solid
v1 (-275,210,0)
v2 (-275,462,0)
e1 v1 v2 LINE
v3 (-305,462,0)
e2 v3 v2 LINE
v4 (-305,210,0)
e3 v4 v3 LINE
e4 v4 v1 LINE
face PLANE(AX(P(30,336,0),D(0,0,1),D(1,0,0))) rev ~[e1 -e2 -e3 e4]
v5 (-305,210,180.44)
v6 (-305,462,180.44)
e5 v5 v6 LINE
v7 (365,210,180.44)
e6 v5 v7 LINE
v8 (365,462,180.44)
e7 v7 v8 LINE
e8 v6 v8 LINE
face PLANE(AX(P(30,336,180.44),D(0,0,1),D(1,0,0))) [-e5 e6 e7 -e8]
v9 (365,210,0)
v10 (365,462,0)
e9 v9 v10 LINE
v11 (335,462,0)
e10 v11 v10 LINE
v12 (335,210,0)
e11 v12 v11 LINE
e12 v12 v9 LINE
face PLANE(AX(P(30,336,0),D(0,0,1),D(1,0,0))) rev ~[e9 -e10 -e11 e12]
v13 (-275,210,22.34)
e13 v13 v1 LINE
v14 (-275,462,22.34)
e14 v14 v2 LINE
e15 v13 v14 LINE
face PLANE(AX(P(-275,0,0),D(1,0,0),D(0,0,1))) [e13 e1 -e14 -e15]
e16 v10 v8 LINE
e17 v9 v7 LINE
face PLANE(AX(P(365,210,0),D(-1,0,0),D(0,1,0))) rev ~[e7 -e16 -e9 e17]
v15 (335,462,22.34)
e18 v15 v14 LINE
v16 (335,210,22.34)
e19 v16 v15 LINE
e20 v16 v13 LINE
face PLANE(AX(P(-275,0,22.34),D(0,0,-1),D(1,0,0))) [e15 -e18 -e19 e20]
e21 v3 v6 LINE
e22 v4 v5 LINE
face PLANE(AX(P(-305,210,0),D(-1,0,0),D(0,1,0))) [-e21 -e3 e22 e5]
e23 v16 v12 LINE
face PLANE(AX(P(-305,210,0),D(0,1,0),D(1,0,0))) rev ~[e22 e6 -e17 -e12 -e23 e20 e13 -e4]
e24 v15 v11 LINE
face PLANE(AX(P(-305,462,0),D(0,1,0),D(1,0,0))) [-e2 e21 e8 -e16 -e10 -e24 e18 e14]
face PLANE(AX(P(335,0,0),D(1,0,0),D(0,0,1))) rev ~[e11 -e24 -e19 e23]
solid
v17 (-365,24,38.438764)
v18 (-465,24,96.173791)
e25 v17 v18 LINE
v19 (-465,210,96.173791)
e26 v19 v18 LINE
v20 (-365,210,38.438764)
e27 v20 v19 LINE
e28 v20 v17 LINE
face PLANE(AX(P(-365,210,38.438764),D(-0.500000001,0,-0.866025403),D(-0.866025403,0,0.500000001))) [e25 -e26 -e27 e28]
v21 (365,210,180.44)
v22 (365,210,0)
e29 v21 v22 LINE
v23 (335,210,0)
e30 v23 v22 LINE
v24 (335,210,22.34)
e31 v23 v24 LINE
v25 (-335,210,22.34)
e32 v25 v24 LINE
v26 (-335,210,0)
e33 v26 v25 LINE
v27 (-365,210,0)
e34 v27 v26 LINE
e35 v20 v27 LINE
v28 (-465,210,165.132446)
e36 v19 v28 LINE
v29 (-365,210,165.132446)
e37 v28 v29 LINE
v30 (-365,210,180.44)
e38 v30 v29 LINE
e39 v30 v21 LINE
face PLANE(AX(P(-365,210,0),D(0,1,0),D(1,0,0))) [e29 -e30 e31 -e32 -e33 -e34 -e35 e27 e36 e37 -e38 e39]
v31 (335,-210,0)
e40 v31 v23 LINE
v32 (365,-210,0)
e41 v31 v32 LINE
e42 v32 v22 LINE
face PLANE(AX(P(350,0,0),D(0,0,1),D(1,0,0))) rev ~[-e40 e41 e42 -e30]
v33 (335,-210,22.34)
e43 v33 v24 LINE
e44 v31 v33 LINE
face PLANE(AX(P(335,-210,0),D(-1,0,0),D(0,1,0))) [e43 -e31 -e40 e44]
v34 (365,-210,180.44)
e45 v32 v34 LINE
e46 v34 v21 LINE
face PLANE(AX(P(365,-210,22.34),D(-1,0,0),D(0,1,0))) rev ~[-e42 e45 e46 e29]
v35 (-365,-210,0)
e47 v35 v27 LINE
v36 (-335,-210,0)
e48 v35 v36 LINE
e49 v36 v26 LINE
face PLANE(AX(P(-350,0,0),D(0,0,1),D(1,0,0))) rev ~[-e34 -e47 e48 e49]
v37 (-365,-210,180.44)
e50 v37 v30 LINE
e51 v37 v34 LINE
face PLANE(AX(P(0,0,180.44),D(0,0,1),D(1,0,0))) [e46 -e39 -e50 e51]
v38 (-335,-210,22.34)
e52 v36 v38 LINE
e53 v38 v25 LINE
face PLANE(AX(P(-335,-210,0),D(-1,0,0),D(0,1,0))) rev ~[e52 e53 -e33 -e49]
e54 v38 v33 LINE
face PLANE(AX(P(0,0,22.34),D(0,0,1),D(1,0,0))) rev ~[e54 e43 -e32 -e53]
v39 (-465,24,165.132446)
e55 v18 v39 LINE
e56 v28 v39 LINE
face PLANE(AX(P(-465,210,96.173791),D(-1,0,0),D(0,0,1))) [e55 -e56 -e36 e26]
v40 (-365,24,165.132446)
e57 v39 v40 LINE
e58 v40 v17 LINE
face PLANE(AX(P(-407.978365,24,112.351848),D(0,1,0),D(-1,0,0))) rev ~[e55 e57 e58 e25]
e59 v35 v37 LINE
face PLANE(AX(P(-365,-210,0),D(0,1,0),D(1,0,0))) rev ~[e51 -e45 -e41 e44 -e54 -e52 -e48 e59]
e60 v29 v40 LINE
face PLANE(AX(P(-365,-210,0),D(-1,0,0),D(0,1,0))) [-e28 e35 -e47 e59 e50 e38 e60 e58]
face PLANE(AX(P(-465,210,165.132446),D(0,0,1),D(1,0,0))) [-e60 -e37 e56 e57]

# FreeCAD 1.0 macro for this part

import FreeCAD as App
import Part
import Sketcher
Q = App.Units.Quantity


def add_polygon(sketch, points):
    """Adds a closed chain of lines whose ends are joined by coincident constraints."""
    first, n = sketch.GeometryCount, len(points)
    for a, b in zip(points, points[1:] + points[:1]):
        sketch.addGeometry(Part.LineSegment(App.Vector(*a, 0), App.Vector(*b, 0)), False)
    for i in range(n):
        sketch.addConstraint(Sketcher.Constraint("Coincident", first + i, 2, first + (i + 1) % n, 1))

doc = App.newDocument("Part")
body = doc.addObject("PartDesign::Body", "Body")

sketch1 = body.newObject("Sketcher::SketchObject", "Sketch")
sketch1.AttachmentSupport = (doc.getObject("XY_Plane"), [""])
sketch1.MapMode = "FlatFace"
sketch1.AttachmentOffset = App.Placement(App.Vector(0, 0, 22.34), App.Rotation())
add_polygon(sketch1, [(-365, 210), (-365, -210), (365, -210), (365, 210)])
sketch1.addConstraint(Sketcher.Constraint("Vertical", 0))
sketch1.addConstraint(Sketcher.Constraint("Horizontal", 1))
sketch1.addConstraint(Sketcher.Constraint("Vertical", 2))
sketch1.addConstraint(Sketcher.Constraint("Horizontal", 3))
sketch1.addConstraint(Sketcher.Constraint("Symmetric", 0, 2, 2, 2, -1, 1))
sketch1.addConstraint(Sketcher.Constraint("DistanceX", 1, 1, 1, 2, Q("730 mm")))
sketch1.addConstraint(Sketcher.Constraint("DistanceY", 0, 2, 0, 1, Q("420 mm")))
pad1 = body.newObject("PartDesign::Pad", "Pad")
pad1.Profile = sketch1
pad1.Length = 158.1

sketch2 = body.newObject("Sketcher::SketchObject", "Sketch001")
sketch2.AttachmentSupport = (doc.getObject("XY_Plane"), [""])
sketch2.MapMode = "FlatFace"
add_polygon(sketch2, [(-365, 210), (-365, -210), (-335, -210), (-335, 210)])
add_polygon(sketch2, [(335, 210), (335, -210), (365, -210), (365, 210)])
sketch2.addConstraint(Sketcher.Constraint("Vertical", 0))
sketch2.addConstraint(Sketcher.Constraint("Horizontal", 1))
sketch2.addConstraint(Sketcher.Constraint("Vertical", 2))
sketch2.addConstraint(Sketcher.Constraint("Horizontal", 3))
sketch2.addConstraint(Sketcher.Constraint("Vertical", 4))
sketch2.addConstraint(Sketcher.Constraint("Horizontal", 5))
sketch2.addConstraint(Sketcher.Constraint("Vertical", 6))
sketch2.addConstraint(Sketcher.Constraint("Horizontal", 7))
sketch2.addConstraint(Sketcher.Constraint("Symmetric", 2, 2, 4, 2, -1, 1))
sketch2.addConstraint(Sketcher.Constraint("Symmetric", 0, 2, 6, 2, -1, 1))
sketch2.addConstraint(Sketcher.Constraint("Horizontal", 1, 2, 4, 2))
sketch2.addConstraint(Sketcher.Constraint("DistanceX", 1, 1, 1, 2, Q("30 mm")))
sketch2.addConstraint(Sketcher.Constraint("DistanceY", 0, 2, 0, 1, Q("420 mm")))
sketch2.addConstraint(Sketcher.Constraint("DistanceX", 0, 2, -1, 1, Q("365 mm")))
pad2 = body.newObject("PartDesign::Pad", "Pad001")
pad2.Profile = sketch2
pad2.Length = 22.34

sketch3 = body.newObject("Sketcher::SketchObject", "Sketch002")
sketch3.AttachmentSupport = (doc.getObject("XZ_Plane"), [""])
sketch3.MapMode = "FlatFace"
sketch3.AttachmentOffset = App.Placement(App.Vector(0, 0, -210), App.Rotation())
add_polygon(sketch3, [(-365, 165), (-465, 165), (-465, 96), (-365, 38)])
sketch3.addConstraint(Sketcher.Constraint("Horizontal", 0))
sketch3.addConstraint(Sketcher.Constraint("Vertical", 1))
sketch3.addConstraint(Sketcher.Constraint("Vertical", 3))
sketch3.addConstraint(Sketcher.Constraint("DistanceX", 0, 2, 0, 1, Q("100 mm")))
sketch3.addConstraint(Sketcher.Constraint("Angle", 2, Q("-30 deg")))
sketch3.addConstraint(Sketcher.Constraint("DistanceX", 0, 2, -1, 1, Q("465 mm")))
sketch3.addConstraint(Sketcher.Constraint("DistanceY", 3, 1, 3, 2, Q("126.693682 mm")))
sketch3.addConstraint(Sketcher.Constraint("DistanceY", -1, 1, 1, 2, Q("96.173791 mm")))
pad3 = body.newObject("PartDesign::Pad", "Pad002")
pad3.Profile = sketch3
pad3.Length = 186
body2 = doc.addObject("PartDesign::Body", "Body001")

sketch4 = body2.newObject("Sketcher::SketchObject", "Sketch003")
sketch4.AttachmentSupport = (doc.getObject("XY_Plane001"), [""])
sketch4.MapMode = "FlatFace"
add_polygon(sketch4, [(-305, 462), (-305, 210), (365, 210), (365, 462)])
sketch4.addConstraint(Sketcher.Constraint("Vertical", 0))
sketch4.addConstraint(Sketcher.Constraint("Horizontal", 1))
sketch4.addConstraint(Sketcher.Constraint("Vertical", 2))
sketch4.addConstraint(Sketcher.Constraint("Horizontal", 3))
sketch4.addConstraint(Sketcher.Constraint("DistanceX", 1, 1, 1, 2, Q("670 mm")))
sketch4.addConstraint(Sketcher.Constraint("DistanceY", 0, 2, 0, 1, Q("252 mm")))
sketch4.addConstraint(Sketcher.Constraint("DistanceX", 0, 2, -1, 1, Q("305 mm")))
sketch4.addConstraint(Sketcher.Constraint("DistanceY", -1, 1, 0, 2, Q("210 mm")))
pad4 = body2.newObject("PartDesign::Pad", "Pad003")
pad4.Profile = sketch4
pad4.Length = 180.44

sketch5 = body2.newObject("Sketcher::SketchObject", "Sketch004")
sketch5.AttachmentSupport = (doc.getObject("XZ_Plane001"), [""])
sketch5.MapMode = "FlatFace"
add_polygon(sketch5, [(-275, 22), (-275, 0), (335, 0), (335, 22)])
sketch5.addConstraint(Sketcher.Constraint("Vertical", 0))
sketch5.addConstraint(Sketcher.Constraint("Horizontal", 1))
sketch5.addConstraint(Sketcher.Constraint("Vertical", 2))
sketch5.addConstraint(Sketcher.Constraint("Horizontal", 3))
sketch5.addConstraint(Sketcher.Constraint("PointOnObject", 0, 2, -1))
sketch5.addConstraint(Sketcher.Constraint("DistanceX", 1, 1, 1, 2, Q("610 mm")))
sketch5.addConstraint(Sketcher.Constraint("DistanceX", 0, 2, -1, 1, Q("275 mm")))
sketch5.addConstraint(Sketcher.Constraint("DistanceY", 0, 2, 0, 1, Q("22.34 mm")))
pocket1 = body2.newObject("PartDesign::Pocket", "Pocket")
pocket1.Profile = sketch5
pocket1.Type = "ThroughAll"

doc.recompute()
